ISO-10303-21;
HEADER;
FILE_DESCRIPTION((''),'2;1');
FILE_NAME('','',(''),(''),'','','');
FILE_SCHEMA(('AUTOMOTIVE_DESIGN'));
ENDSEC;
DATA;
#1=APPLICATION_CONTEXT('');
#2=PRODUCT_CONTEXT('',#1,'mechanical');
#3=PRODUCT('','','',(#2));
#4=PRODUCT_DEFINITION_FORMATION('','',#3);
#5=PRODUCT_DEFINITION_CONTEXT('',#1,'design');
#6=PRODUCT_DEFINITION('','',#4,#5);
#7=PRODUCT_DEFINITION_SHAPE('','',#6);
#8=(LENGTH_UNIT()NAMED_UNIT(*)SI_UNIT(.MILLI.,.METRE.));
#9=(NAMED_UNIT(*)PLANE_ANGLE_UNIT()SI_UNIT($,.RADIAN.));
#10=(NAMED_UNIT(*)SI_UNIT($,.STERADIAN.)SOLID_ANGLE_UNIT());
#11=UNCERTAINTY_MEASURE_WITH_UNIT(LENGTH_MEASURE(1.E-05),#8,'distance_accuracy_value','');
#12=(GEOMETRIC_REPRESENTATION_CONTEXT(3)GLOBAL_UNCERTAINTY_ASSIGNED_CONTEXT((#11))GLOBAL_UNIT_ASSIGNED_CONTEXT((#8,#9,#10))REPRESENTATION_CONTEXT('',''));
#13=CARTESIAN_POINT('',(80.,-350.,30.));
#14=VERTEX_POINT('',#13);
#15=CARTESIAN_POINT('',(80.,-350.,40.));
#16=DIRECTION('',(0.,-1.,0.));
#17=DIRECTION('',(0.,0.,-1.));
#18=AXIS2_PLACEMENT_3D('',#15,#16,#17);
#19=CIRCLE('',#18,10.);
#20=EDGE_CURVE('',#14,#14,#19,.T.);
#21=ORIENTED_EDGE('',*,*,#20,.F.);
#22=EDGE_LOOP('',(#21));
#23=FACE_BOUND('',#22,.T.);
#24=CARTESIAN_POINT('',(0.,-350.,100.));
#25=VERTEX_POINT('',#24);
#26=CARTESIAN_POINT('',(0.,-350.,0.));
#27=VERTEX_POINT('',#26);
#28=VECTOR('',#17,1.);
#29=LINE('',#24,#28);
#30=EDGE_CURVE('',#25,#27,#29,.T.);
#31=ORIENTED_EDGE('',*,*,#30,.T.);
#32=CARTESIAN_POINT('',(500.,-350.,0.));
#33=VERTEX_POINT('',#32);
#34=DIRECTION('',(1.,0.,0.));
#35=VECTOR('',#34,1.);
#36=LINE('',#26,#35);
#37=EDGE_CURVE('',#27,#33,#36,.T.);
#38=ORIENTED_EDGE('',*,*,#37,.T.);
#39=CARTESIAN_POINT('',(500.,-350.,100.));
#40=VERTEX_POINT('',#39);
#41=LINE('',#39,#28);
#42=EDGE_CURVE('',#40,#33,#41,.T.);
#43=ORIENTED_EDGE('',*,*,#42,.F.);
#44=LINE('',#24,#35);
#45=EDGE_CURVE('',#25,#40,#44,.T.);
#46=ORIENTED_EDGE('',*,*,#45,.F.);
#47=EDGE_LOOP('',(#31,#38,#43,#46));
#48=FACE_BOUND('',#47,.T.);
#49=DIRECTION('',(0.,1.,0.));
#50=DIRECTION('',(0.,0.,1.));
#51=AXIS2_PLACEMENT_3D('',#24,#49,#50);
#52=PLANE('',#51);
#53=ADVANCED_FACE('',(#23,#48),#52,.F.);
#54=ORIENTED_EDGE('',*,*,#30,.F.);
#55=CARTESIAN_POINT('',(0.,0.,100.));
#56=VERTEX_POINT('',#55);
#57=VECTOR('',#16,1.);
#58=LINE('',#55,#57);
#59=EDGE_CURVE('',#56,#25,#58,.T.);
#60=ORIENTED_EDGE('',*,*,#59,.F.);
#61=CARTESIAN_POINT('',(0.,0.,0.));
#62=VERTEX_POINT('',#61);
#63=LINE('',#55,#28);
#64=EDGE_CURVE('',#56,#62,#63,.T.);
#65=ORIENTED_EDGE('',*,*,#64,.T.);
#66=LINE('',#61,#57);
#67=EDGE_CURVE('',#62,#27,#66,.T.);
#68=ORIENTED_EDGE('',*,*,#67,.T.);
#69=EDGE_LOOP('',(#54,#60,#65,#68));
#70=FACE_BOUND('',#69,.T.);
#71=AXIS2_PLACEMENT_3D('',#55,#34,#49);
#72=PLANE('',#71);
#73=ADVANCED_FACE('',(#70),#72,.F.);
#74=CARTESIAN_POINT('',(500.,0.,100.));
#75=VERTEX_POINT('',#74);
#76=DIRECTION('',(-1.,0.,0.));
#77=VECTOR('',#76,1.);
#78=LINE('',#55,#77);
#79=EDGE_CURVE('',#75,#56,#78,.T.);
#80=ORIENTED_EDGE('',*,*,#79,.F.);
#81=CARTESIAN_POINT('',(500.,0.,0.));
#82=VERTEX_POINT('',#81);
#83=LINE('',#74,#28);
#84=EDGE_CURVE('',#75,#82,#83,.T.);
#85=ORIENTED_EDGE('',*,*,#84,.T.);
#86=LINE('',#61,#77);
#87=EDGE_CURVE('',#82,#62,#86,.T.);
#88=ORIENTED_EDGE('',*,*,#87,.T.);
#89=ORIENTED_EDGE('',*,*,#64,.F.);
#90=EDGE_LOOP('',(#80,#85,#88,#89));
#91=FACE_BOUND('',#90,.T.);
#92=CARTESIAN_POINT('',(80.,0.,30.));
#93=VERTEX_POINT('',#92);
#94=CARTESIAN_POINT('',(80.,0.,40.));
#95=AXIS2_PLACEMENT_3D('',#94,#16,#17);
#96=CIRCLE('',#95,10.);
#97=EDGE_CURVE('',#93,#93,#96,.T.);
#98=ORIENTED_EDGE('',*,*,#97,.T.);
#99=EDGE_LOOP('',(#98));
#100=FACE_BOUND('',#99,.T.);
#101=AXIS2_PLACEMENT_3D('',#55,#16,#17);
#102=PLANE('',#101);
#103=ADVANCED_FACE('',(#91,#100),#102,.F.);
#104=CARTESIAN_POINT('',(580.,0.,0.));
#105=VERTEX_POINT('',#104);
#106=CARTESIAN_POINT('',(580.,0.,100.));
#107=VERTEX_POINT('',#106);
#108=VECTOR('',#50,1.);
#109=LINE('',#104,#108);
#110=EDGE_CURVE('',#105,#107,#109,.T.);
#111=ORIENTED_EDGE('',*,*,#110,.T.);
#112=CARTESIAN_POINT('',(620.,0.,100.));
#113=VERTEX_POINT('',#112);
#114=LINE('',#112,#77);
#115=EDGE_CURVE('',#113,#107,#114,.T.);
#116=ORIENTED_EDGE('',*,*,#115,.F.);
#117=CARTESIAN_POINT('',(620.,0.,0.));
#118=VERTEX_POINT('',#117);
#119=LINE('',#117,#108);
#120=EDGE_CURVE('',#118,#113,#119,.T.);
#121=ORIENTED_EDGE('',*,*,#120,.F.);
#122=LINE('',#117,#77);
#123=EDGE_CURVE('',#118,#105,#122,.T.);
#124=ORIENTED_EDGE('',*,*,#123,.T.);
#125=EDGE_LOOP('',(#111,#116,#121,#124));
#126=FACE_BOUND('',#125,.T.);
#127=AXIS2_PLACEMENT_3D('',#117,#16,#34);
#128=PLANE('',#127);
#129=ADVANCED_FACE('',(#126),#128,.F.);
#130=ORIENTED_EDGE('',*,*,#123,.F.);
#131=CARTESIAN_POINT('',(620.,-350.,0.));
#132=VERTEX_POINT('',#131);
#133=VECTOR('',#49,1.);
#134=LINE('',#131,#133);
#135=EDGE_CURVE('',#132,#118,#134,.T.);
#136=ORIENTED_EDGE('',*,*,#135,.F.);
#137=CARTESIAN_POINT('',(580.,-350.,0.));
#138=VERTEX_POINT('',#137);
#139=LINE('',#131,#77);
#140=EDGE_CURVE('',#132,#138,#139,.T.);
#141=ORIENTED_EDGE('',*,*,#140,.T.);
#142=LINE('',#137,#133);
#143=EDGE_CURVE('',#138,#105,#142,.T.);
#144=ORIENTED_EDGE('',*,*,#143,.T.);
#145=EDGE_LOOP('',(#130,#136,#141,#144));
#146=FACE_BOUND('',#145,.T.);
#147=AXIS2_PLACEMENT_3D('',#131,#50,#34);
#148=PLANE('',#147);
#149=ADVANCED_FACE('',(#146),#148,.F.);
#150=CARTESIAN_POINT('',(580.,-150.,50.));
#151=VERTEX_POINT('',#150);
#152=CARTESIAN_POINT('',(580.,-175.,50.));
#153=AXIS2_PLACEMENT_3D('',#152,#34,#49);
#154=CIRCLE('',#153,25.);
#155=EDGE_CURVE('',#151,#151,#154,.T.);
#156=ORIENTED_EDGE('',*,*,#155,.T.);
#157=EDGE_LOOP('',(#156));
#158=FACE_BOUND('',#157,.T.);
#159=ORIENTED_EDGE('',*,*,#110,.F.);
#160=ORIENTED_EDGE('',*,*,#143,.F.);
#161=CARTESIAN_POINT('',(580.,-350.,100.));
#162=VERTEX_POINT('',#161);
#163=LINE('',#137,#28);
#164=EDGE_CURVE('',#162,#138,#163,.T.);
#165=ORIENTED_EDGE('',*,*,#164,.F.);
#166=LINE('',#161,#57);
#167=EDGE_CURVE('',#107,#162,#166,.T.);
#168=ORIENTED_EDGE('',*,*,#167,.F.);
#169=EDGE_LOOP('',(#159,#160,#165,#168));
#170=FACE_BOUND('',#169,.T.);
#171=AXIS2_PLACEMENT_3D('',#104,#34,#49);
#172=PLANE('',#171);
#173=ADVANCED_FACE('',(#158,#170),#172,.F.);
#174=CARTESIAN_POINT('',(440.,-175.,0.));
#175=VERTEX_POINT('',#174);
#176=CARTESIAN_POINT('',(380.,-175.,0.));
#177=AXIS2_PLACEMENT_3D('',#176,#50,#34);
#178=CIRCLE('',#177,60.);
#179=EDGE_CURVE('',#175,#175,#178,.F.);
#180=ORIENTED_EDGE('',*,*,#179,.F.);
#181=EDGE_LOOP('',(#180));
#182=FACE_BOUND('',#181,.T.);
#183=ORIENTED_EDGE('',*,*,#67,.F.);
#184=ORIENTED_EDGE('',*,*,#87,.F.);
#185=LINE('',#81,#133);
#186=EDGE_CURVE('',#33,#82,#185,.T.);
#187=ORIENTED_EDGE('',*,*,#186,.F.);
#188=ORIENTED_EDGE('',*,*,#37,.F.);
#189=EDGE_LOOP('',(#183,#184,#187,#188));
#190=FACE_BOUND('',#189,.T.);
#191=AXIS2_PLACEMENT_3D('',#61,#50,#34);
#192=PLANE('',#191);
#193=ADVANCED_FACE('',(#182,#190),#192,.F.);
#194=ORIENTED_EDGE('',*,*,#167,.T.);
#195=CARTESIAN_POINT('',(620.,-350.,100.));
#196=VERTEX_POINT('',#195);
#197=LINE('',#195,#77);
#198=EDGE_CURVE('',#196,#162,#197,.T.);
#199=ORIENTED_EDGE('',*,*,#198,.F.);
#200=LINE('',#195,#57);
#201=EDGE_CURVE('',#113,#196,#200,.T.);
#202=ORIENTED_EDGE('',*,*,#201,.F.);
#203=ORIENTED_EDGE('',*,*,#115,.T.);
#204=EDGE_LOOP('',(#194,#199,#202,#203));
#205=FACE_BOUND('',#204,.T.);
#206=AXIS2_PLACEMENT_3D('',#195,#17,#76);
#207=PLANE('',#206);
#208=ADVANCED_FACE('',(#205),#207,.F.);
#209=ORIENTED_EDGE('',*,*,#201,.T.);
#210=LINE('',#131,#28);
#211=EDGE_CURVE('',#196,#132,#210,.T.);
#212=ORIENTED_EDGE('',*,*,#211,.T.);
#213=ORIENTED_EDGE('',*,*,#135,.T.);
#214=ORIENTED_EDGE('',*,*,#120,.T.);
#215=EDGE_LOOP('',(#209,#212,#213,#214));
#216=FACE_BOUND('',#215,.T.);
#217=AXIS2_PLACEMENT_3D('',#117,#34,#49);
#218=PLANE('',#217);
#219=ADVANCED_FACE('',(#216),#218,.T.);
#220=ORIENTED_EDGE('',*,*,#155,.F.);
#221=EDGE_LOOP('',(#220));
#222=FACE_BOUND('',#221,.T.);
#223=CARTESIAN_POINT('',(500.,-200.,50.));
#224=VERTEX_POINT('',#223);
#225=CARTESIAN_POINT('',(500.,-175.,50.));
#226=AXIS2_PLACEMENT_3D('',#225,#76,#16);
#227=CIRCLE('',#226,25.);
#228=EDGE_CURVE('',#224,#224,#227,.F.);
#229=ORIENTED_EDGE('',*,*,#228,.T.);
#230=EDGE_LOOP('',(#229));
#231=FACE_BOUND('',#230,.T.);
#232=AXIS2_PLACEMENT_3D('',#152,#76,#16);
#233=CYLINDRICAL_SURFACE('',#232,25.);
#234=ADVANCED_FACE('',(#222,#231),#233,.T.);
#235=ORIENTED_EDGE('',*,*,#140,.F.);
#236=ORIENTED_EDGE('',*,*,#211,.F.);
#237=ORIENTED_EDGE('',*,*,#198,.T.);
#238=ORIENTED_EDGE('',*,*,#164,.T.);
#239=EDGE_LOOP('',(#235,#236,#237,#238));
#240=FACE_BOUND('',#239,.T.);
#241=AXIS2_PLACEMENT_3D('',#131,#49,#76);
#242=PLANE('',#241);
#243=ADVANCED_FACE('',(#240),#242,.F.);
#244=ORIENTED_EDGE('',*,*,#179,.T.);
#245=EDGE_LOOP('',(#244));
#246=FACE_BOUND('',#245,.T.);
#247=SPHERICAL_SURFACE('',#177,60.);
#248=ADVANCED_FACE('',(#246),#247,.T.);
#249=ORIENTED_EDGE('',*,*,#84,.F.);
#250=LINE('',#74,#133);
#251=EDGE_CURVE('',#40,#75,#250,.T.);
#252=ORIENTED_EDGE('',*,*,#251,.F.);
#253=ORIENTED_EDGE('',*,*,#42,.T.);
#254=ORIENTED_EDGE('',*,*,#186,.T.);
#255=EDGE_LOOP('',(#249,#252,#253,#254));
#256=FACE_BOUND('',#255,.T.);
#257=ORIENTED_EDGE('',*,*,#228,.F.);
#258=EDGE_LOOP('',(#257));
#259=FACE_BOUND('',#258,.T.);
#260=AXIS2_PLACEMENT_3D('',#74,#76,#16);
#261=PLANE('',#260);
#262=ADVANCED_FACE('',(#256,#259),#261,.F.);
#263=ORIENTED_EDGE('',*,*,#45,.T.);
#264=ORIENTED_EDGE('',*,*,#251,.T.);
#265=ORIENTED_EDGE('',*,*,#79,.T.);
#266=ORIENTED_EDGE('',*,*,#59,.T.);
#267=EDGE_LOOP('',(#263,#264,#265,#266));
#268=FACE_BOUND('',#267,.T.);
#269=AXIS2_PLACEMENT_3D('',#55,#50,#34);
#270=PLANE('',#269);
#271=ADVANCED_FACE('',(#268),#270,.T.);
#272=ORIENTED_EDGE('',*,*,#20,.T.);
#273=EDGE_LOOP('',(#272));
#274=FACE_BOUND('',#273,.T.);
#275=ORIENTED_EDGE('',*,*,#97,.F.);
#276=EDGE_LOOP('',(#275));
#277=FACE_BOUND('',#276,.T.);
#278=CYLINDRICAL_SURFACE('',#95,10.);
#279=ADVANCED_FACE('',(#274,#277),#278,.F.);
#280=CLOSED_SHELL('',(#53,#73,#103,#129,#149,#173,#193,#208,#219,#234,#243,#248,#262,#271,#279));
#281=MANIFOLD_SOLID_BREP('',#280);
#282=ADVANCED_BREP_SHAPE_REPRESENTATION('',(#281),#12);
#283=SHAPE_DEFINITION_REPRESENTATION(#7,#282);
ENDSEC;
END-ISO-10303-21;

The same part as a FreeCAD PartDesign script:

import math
import FreeCAD as App
import Part
import Sketcher


def add_polygon(sketch, points):
    """Adds a closed chain of lines whose ends are joined by coincident constraints."""
    first, n = sketch.GeometryCount, len(points)
    for a, b in zip(points, points[1:] + points[:1]):
        sketch.addGeometry(Part.LineSegment(App.Vector(*a, 0), App.Vector(*b, 0)), False)
    for i in range(n):
        sketch.addConstraint(Sketcher.Constraint("Coincident", first + i, 2, first + (i + 1) % n, 1))

doc = App.newDocument("Part")
body = doc.addObject("PartDesign::Body", "Body")

sketch1 = body.newObject("Sketcher::SketchObject", "Sketch")
sketch1.AttachmentSupport = (doc.getObject("XY_Plane"), [""])
sketch1.MapMode = "FlatFace"
add_polygon(sketch1, [(0, 0), (0, -350), (500, -350), (500, 0)])
sketch1.addConstraint(Sketcher.Constraint("Vertical", 0))
sketch1.addConstraint(Sketcher.Constraint("Horizontal", 1))
sketch1.addConstraint(Sketcher.Constraint("Vertical", 2))
sketch1.addConstraint(Sketcher.Constraint("Horizontal", 3))
sketch1.addConstraint(Sketcher.Constraint("Coincident", 3, 2, -1, 1))
sketch1.addConstraint(Sketcher.Constraint("DistanceX", 1, 1, 1, 2, 500.0))
sketch1.addConstraint(Sketcher.Constraint("DistanceY", 0, 2, 0, 1, 350.0))
pad1 = body.newObject("PartDesign::Pad", "Pad")
pad1.Profile = sketch1
pad1.Length = 100

sketch2 = body.newObject("Sketcher::SketchObject", "Sketch001")
sketch2.AttachmentSupport = (doc.getObject("XZ_Plane"), [""])
sketch2.MapMode = "FlatFace"
sketch2.AttachmentOffset = App.Placement(App.Vector(0, 0, 350), App.Rotation())
sketch2.addGeometry(Part.Circle(App.Vector(80, 40, 0), App.Vector(0, 0, 1), 10), False)
sketch2.addConstraint(Sketcher.Constraint("Diameter", 0, 20.0))
sketch2.addConstraint(Sketcher.Constraint("DistanceX", -1, 1, 0, 3, 80.0))
sketch2.addConstraint(Sketcher.Constraint("DistanceY", -1, 1, 0, 3, 40.0))
pocket1 = body.newObject("PartDesign::Pocket", "Pocket")
pocket1.Profile = sketch2
pocket1.Type = "ThroughAll"

sketch3 = body.newObject("Sketcher::SketchObject", "Sketch002")
sketch3.AttachmentSupport = (doc.getObject("XY_Plane"), [""])
sketch3.MapMode = "FlatFace"
sketch3.addGeometry(Part.LineSegment(App.Vector(320, -175, 0), App.Vector(440, -175, 0)), False)
sketch3.addGeometry(Part.ArcOfCircle(Part.Circle(App.Vector(380, -175, 0), App.Vector(0, 0, 1), 60), math.radians(180), math.radians(360)), False)
sketch3.addGeometry(Part.LineSegment(App.Vector(320, -175, 0), App.Vector(440, -175, 0)), True)
sketch3.addConstraint(Sketcher.Constraint("Coincident", 0, 1, 1, 1))
sketch3.addConstraint(Sketcher.Constraint("Coincident", 1, 2, 0, 2))
sketch3.addConstraint(Sketcher.Constraint("Horizontal", 0))
sketch3.addConstraint(Sketcher.Constraint("Horizontal", 2))
sketch3.addConstraint(Sketcher.Constraint("Coincident", 2, 1, 0, 1))
sketch3.addConstraint(Sketcher.Constraint("Horizontal", 1, 3, 0, 1))
sketch3.addConstraint(Sketcher.Constraint("Equal", 0, 2))
sketch3.addConstraint(Sketcher.Constraint("Radius", 1, 60.0))
sketch3.addConstraint(Sketcher.Constraint("DistanceX", -1, 1, 1, 3, 380.0))
sketch3.addConstraint(Sketcher.Constraint("DistanceY", 1, 3, -1, 1, 175.0))
revolution = body.newObject("PartDesign::Revolution", "Revolution")
revolution.Profile = sketch3
revolution.ReferenceAxis = (sketch3, ["Axis0"])
revolution.Angle = 180

sketch4 = body.newObject("Sketcher::SketchObject", "Sketch003")
sketch4.AttachmentSupport = (doc.getObject("YZ_Plane"), [""])
sketch4.MapMode = "FlatFace"
sketch4.AttachmentOffset = App.Placement(App.Vector(0, 0, 500), App.Rotation())
sketch4.addGeometry(Part.Circle(App.Vector(-175, 50, 0), App.Vector(0, 0, 1), 25), False)
sketch4.addConstraint(Sketcher.Constraint("Diameter", 0, 50.0))
sketch4.addConstraint(Sketcher.Constraint("DistanceX", 0, 3, -1, 1, 175.0))
sketch4.addConstraint(Sketcher.Constraint("DistanceY", -1, 1, 0, 3, 50.0))
pad2 = body.newObject("PartDesign::Pad", "Pad001")
pad2.Profile = sketch4
pad2.Length = 80

sketch5 = body.newObject("Sketcher::SketchObject", "Sketch004")
sketch5.AttachmentSupport = (doc.getObject("YZ_Plane"), [""])
sketch5.MapMode = "FlatFace"
sketch5.AttachmentOffset = App.Placement(App.Vector(0, 0, 580), App.Rotation())
add_polygon(sketch5, [(0, 100), (-350, 100), (-350, 0), (0, 0)])
sketch5.addConstraint(Sketcher.Constraint("Horizontal", 0))
sketch5.addConstraint(Sketcher.Constraint("Vertical", 1))
sketch5.addConstraint(Sketcher.Constraint("Horizontal", 2))
sketch5.addConstraint(Sketcher.Constraint("Vertical", 3))
sketch5.addConstraint(Sketcher.Constraint("Coincident", 2, 2, -1, 1))
sketch5.addConstraint(Sketcher.Constraint("DistanceX", 0, 2, 0, 1, 350.0))
sketch5.addConstraint(Sketcher.Constraint("DistanceY", 1, 2, 1, 1, 100.0))
pad3 = body.newObject("PartDesign::Pad", "Pad002")
pad3.Profile = sketch5
pad3.Length = 40

doc.recompute()
